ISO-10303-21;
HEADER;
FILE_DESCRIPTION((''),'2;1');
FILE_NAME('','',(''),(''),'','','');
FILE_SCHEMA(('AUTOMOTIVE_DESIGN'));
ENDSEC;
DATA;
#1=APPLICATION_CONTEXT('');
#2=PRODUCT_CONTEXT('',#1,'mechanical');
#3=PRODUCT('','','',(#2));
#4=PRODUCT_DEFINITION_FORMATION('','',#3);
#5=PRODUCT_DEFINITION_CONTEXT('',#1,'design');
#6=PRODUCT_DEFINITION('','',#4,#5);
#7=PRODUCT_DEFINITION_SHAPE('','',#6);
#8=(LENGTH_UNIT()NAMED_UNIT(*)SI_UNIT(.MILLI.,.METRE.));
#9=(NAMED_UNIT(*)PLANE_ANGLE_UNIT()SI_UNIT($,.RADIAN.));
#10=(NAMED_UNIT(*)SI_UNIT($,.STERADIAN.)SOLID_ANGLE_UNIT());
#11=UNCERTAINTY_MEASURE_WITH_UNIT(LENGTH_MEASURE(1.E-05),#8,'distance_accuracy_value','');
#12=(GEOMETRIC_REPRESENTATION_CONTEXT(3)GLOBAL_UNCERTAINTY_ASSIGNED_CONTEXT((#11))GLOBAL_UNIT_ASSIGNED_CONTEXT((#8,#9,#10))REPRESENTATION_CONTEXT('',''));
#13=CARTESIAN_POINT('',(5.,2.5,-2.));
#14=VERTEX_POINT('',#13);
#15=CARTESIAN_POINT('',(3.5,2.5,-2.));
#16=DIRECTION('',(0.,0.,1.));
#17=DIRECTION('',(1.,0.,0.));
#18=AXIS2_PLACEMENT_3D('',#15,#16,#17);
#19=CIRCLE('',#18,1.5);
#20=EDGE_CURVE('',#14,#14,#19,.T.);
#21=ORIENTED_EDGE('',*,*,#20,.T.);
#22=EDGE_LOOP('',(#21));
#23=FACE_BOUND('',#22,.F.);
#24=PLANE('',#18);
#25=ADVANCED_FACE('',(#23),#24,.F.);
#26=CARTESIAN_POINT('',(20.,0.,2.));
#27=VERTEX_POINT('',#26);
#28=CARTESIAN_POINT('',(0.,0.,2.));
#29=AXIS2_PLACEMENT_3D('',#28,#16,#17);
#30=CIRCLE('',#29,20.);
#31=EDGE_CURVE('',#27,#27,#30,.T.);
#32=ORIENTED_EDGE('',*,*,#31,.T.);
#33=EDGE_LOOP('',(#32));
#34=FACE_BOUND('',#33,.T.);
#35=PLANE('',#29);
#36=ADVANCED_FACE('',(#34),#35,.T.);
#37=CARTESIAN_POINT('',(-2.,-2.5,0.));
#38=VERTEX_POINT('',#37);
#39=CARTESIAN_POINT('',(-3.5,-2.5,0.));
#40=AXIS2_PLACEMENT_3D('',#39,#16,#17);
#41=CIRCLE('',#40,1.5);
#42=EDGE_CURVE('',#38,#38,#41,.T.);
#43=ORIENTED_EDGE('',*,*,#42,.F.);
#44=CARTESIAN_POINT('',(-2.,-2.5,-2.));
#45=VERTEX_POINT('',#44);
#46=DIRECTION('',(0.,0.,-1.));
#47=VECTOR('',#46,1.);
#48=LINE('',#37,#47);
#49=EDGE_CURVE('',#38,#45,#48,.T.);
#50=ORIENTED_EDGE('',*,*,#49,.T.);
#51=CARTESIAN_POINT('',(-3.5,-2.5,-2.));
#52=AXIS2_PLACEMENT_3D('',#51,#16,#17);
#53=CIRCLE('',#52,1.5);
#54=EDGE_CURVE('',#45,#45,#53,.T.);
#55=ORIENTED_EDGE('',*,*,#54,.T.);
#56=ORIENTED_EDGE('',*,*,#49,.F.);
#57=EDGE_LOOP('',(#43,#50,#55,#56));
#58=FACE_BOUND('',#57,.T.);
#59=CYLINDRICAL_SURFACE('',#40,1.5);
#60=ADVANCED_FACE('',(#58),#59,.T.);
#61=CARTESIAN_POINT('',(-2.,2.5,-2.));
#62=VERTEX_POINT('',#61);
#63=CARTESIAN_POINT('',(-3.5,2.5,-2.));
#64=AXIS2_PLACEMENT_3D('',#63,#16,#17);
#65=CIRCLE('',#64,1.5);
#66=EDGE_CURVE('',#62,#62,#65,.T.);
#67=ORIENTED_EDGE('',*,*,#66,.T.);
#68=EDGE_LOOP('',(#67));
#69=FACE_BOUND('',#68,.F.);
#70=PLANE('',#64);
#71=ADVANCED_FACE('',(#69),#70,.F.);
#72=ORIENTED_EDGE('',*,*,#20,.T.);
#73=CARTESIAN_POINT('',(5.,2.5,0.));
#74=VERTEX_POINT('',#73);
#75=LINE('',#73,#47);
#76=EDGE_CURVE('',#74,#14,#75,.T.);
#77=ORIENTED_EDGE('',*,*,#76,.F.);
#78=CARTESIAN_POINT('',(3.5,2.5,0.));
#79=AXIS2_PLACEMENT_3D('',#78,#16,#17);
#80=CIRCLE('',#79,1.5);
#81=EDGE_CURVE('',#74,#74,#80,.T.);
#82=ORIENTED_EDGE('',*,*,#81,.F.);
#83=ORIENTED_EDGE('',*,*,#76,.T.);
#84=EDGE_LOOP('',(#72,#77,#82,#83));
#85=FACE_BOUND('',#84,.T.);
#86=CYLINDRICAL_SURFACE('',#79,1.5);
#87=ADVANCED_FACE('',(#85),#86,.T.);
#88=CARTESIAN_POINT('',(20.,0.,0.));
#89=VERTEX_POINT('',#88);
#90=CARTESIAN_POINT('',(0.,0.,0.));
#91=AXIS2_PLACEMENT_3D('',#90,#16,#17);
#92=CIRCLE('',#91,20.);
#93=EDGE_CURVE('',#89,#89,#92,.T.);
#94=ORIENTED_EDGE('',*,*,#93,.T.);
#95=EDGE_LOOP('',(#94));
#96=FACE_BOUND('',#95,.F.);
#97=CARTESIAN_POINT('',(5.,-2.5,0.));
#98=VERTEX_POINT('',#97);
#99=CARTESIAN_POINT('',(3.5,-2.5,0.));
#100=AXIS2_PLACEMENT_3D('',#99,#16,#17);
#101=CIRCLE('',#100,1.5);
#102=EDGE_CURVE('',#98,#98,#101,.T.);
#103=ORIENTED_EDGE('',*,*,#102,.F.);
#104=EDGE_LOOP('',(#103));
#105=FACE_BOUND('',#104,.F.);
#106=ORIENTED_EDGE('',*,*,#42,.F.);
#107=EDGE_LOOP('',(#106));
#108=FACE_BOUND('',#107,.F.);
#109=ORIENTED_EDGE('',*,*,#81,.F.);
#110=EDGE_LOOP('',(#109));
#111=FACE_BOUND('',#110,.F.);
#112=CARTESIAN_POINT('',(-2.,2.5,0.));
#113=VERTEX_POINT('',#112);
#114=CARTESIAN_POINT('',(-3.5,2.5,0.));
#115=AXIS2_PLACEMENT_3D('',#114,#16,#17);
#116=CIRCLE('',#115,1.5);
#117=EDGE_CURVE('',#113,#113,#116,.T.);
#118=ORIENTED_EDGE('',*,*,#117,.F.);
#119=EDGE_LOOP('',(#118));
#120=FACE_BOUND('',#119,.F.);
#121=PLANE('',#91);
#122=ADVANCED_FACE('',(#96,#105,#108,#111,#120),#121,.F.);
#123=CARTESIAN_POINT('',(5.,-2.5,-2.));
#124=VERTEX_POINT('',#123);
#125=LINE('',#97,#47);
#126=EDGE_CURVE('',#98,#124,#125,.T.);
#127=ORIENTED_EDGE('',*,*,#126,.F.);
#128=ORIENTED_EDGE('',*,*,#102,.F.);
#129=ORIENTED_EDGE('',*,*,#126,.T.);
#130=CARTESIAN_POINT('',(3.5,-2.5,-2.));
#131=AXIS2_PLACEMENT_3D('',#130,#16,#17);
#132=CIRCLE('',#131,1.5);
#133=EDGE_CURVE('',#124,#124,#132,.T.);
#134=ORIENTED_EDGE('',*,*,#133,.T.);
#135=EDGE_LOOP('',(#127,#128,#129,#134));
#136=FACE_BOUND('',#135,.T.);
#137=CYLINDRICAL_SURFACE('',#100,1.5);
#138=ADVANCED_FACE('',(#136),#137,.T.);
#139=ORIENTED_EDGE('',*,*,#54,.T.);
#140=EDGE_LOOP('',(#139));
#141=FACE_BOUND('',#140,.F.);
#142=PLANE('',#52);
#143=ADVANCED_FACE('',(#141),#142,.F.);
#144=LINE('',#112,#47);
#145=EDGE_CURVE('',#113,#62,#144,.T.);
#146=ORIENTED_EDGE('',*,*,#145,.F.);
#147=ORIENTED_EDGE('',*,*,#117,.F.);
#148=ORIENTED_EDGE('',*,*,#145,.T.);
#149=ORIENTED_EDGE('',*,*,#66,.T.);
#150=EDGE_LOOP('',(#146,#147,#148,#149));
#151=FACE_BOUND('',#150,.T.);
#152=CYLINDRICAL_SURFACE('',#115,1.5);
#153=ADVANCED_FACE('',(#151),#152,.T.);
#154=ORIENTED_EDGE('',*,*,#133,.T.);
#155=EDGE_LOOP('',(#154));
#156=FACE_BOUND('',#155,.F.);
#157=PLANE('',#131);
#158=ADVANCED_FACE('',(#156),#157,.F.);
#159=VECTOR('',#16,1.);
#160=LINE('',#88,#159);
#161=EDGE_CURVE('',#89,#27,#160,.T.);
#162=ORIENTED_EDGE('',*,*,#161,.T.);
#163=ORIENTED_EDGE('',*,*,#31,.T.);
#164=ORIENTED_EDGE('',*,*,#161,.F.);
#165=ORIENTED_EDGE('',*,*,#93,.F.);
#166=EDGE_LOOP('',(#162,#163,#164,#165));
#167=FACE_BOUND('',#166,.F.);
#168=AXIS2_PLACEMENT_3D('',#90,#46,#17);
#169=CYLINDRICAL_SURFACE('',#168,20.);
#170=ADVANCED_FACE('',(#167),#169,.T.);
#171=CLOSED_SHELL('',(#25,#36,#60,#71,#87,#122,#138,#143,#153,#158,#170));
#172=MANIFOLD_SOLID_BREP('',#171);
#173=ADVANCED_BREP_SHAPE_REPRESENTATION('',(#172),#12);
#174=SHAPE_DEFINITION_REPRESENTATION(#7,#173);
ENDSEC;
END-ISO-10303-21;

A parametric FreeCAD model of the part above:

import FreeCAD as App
import Part
import Sketcher
from FreeCAD import Vector
Q = App.Units.Quantity

doc = App.newDocument("Part")
body = doc.addObject("PartDesign::Body", "Body")

# Sketch on XY plane
sketch1 = doc.addObject("Sketcher::SketchObject", "Sketch")
body.addObject(sketch1)
sketch1.AttachmentSupport = (doc.XY_Plane, [""])
sketch1.MapMode = "FlatFace"
sketch1.addGeometry(Part.Circle(Vector(0, 0, 0), Vector(0, 0, 1), 20), False)
sketch1.addConstraint([
    Sketcher.Constraint("Coincident", 0, 3, -1, 1),
    Sketcher.Constraint("Diameter", 0, Q("40 mm")),
])
pad1 = doc.addObject("PartDesign::Pad", "Pad")
body.addObject(pad1)
pad1.Profile = sketch1
pad1.Length = 2

# Sketch on XY plane
sketch2 = doc.addObject("Sketcher::SketchObject", "Sketch001")
body.addObject(sketch2)
sketch2.AttachmentSupport = (doc.XY_Plane, [""])
sketch2.MapMode = "FlatFace"
sketch2.addGeometry([
    Part.Circle(Vector(-3.5, 2.5, 0), Vector(0, 0, 1), 1.5),
    Part.Circle(Vector(-3.5, -2.5, 0), Vector(0, 0, 1), 1.5),
    Part.Circle(Vector(3.5, -2.5, 0), Vector(0, 0, 1), 1.5),
    Part.Circle(Vector(3.5, 2.5, 0), Vector(0, 0, 1), 1.5),
], False)
sketch2.addConstraint([
    Sketcher.Constraint("Equal", 0, 1),
    Sketcher.Constraint("Equal", 1, 2),
    Sketcher.Constraint("Equal", 2, 3),
    Sketcher.Constraint("Symmetric", 0, 3, 2, 3, -1, 1),
    Sketcher.Constraint("Symmetric", 1, 3, 3, 3, -1, 1),
    Sketcher.Constraint("Symmetric", 1, 3, 2, 3, -2),
    Sketcher.Constraint("Diameter", 0, Q("3 mm")),
    Sketcher.Constraint("DistanceY", 1, 3, 0, 3, Q("5 mm")),
    Sketcher.Constraint("DistanceX", 1, 3, 2, 3, Q("7 mm")),
])
pad2 = doc.addObject("PartDesign::Pad", "Pad001")
body.addObject(pad2)
pad2.Profile = sketch2
pad2.Length = 2
pad2.Reversed = True

doc.recompute()
